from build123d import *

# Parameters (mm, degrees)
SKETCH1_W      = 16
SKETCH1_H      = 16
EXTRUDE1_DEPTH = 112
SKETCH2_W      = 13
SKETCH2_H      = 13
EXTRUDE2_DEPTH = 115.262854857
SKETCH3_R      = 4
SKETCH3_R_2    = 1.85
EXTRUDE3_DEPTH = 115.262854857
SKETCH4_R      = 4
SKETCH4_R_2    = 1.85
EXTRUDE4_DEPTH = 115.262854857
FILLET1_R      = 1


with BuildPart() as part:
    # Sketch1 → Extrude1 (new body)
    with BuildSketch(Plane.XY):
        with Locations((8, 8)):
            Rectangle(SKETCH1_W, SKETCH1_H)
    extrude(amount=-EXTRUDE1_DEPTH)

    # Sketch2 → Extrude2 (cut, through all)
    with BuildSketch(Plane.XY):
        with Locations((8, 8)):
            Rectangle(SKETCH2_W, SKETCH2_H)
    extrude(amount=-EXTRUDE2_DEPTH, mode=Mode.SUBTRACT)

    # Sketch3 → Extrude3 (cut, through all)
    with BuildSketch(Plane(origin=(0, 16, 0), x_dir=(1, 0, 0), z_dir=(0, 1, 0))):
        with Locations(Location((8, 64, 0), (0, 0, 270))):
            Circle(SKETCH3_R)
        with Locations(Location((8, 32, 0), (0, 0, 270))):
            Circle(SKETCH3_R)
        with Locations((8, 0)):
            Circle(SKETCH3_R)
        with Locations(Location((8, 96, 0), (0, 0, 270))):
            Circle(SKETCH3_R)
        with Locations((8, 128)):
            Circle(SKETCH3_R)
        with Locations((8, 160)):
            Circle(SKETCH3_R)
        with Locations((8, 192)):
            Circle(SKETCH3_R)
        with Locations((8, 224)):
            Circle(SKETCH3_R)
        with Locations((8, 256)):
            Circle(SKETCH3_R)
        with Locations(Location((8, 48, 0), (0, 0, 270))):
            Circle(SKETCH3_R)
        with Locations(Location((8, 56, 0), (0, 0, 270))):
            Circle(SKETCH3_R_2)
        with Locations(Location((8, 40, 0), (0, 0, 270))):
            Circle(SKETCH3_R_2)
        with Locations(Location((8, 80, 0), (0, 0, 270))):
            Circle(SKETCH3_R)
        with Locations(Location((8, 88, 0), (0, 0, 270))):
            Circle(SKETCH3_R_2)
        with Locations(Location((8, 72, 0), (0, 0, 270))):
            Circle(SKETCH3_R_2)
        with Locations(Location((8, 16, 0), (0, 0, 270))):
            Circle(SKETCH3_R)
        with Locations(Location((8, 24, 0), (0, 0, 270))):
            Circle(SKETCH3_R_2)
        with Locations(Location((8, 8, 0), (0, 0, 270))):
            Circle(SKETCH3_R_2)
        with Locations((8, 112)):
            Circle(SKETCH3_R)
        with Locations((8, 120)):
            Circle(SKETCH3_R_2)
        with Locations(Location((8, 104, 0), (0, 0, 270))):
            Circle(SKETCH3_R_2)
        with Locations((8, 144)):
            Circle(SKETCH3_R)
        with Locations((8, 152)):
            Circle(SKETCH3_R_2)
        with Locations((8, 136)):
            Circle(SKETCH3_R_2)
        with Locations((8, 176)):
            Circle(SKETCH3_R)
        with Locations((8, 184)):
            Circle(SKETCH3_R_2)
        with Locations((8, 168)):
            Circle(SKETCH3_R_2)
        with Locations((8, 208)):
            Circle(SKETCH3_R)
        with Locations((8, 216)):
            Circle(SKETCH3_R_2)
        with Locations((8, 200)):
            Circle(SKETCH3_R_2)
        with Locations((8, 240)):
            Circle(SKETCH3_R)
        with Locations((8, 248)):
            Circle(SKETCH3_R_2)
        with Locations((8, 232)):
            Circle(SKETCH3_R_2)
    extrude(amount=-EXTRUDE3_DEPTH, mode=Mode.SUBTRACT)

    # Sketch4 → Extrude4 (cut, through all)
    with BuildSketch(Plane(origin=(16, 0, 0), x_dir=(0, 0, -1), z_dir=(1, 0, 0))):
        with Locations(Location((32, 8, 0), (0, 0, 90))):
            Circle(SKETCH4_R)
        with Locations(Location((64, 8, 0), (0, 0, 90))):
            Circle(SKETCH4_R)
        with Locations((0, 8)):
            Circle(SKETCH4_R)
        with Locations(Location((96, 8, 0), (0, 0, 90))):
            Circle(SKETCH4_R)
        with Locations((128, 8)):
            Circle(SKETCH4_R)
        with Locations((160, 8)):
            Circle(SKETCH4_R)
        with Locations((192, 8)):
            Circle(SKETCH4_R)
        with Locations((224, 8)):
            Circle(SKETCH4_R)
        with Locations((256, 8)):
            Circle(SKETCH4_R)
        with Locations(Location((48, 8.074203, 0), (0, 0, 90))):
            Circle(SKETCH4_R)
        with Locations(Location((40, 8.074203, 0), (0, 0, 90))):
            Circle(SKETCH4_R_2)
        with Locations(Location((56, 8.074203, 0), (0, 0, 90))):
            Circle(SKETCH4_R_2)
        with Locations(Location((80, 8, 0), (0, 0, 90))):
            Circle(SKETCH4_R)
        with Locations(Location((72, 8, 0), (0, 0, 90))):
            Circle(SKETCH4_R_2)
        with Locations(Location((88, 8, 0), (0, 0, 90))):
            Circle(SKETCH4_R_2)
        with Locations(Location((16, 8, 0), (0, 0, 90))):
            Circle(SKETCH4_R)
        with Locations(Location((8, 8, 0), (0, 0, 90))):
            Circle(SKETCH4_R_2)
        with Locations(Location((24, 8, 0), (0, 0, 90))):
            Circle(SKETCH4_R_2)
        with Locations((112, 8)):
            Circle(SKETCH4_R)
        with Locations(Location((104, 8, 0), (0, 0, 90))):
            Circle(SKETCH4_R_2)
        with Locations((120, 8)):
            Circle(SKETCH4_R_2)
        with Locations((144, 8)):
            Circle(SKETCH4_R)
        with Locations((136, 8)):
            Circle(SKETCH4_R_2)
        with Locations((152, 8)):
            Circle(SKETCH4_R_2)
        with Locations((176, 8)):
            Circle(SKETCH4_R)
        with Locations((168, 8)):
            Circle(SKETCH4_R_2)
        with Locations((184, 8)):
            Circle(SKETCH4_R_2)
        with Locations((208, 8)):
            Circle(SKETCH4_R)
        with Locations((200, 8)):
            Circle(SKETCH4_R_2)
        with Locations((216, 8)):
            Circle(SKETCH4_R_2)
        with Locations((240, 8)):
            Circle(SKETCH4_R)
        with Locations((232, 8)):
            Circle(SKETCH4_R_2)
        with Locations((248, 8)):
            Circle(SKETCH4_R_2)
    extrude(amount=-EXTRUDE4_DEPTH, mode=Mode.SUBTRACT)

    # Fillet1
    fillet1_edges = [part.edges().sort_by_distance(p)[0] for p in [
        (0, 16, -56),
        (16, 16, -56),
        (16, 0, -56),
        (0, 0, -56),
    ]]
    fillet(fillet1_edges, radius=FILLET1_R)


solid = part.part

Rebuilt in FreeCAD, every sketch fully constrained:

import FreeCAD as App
import Part
import Sketcher


def edges_at(feature, points):
    """Names of the edges that pass closest to the given points."""
    edges = feature.Shape.Edges
    near = lambda p: min(range(len(edges)), key=lambda i: edges[i].distToShape(Part.Vertex(*p))[0])
    return sorted({f"Edge{near(p) + 1}" for p in points})


def add_polygon(sketch, points):
    """Adds a closed chain of lines whose ends are joined by coincident constraints."""
    first, n = sketch.GeometryCount, len(points)
    for a, b in zip(points, points[1:] + points[:1]):
        sketch.addGeometry(Part.LineSegment(App.Vector(*a, 0), App.Vector(*b, 0)), False)
    for i in range(n):
        sketch.addConstraint(Sketcher.Constraint("Coincident", first + i, 2, first + (i + 1) % n, 1))

doc = App.newDocument("Part")
params = doc.addObject("Spreadsheet::Sheet", "Params")
for row, (alias, value) in enumerate([
    ("sketch1_width", "16 mm"),
    ("pad1_length", "112 mm"),
    ("sketch2_width", "13 mm"),
    ("sketch3_diameter", "8 mm"),
    ("sketch3_diameter2", "3.7 mm"),
    ("sketch4_diameter", "8 mm"),
    ("sketch4_diameter2", "3.7 mm"),
    ("fillet_radius", "1 mm"),
], start=1):
    params.set(f"A{row}", alias)
    params.set(f"B{row}", "=" + value)
    params.setAlias(f"B{row}", alias)

body = doc.addObject("PartDesign::Body", "Body")

sketch1 = doc.addObject("Sketcher::SketchObject", "Sketch")
body.addObject(sketch1)
sketch1.AttachmentSupport = (doc.XY_Plane, [""])
sketch1.MapMode = "FlatFace"
add_polygon(sketch1, [(0, 16), (0, 0), (16, 0), (16, 16)])
sketch1.addConstraint([
    Sketcher.Constraint("Vertical", 0),
    Sketcher.Constraint("Horizontal", 1),
    Sketcher.Constraint("Vertical", 2),
    Sketcher.Constraint("Horizontal", 3),
    Sketcher.Constraint("Coincident", 0, 2, -1, 1),
    Sketcher.Constraint("Equal", 3, 0),
    Sketcher.Constraint("DistanceX", 1, 1, 1, 2, 16.0),
])
sketch1.setExpression("Constraints[10]", "Params.sketch1_width")
pad1 = doc.addObject("PartDesign::Pad", "Pad")
body.addObject(pad1)
pad1.Profile = sketch1
pad1.setExpression("Length", "Params.pad1_length")
pad1.Reversed = True

sketch2 = doc.addObject("Sketcher::SketchObject", "Sketch001")
body.addObject(sketch2)
sketch2.AttachmentSupport = (doc.XY_Plane, [""])
sketch2.MapMode = "FlatFace"
add_polygon(sketch2, [(2, 14), (2, 2), (14, 2), (14, 14)])
sketch2.addConstraint([
    Sketcher.Constraint("Vertical", 0),
    Sketcher.Constraint("Horizontal", 1),
    Sketcher.Constraint("Vertical", 2),
    Sketcher.Constraint("Horizontal", 3),
    Sketcher.Constraint("Equal", 3, 0),
    Sketcher.Constraint("DistanceX", 1, 1, 1, 2, 13.0),
    Sketcher.Constraint("DistanceX", -1, 1, 0, 2, 1.5),
    Sketcher.Constraint("DistanceY", -1, 1, 0, 2, 1.5),
])
sketch2.setExpression("Constraints[9]", "Params.sketch2_width")
pocket1 = doc.addObject("PartDesign::Pocket", "Pocket")
body.addObject(pocket1)
pocket1.Profile = sketch2
pocket1.Type = "ThroughAll"

sketch3 = doc.addObject("Sketcher::SketchObject", "Sketch002")
body.addObject(sketch3)
sketch3.AttachmentSupport = (doc.XZ_Plane, [""])
sketch3.MapMode = "FlatFace"
sketch3.AttachmentOffset = App.Placement(App.Vector(0, 0, -16), App.Rotation())
sketch3.addGeometry([
    Part.Circle(App.Vector(8, -64, 0), App.Vector(0, 0, 1), 4),
    Part.Circle(App.Vector(8, -32, 0), App.Vector(0, 0, 1), 4),
    Part.Circle(App.Vector(8, 0, 0), App.Vector(0, 0, 1), 4),
    Part.Circle(App.Vector(8, -96, 0), App.Vector(0, 0, 1), 4),
    Part.Circle(App.Vector(8, -128, 0), App.Vector(0, 0, 1), 4),
    Part.Circle(App.Vector(8, -160, 0), App.Vector(0, 0, 1), 4),
    Part.Circle(App.Vector(8, -192, 0), App.Vector(0, 0, 1), 4),
    Part.Circle(App.Vector(8, -224, 0), App.Vector(0, 0, 1), 4),
    Part.Circle(App.Vector(8, -256, 0), App.Vector(0, 0, 1), 4),
    Part.Circle(App.Vector(8, -48, 0), App.Vector(0, 0, 1), 4),
    Part.Circle(App.Vector(8, -56, 0), App.Vector(0, 0, 1), 1.9),
    Part.Circle(App.Vector(8, -40, 0), App.Vector(0, 0, 1), 1.9),
    Part.Circle(App.Vector(8, -80, 0), App.Vector(0, 0, 1), 4),
    Part.Circle(App.Vector(8, -88, 0), App.Vector(0, 0, 1), 1.9),
    Part.Circle(App.Vector(8, -72, 0), App.Vector(0, 0, 1), 1.9),
    Part.Circle(App.Vector(8, -16, 0), App.Vector(0, 0, 1), 4),
    Part.Circle(App.Vector(8, -24, 0), App.Vector(0, 0, 1), 1.9),
    Part.Circle(App.Vector(8, -8, 0), App.Vector(0, 0, 1), 1.9),
    Part.Circle(App.Vector(8, -112, 0), App.Vector(0, 0, 1), 4),
    Part.Circle(App.Vector(8, -120, 0), App.Vector(0, 0, 1), 1.9),
    Part.Circle(App.Vector(8, -104, 0), App.Vector(0, 0, 1), 1.9),
    Part.Circle(App.Vector(8, -144, 0), App.Vector(0, 0, 1), 4),
    Part.Circle(App.Vector(8, -152, 0), App.Vector(0, 0, 1), 1.9),
    Part.Circle(App.Vector(8, -136, 0), App.Vector(0, 0, 1), 1.9),
    Part.Circle(App.Vector(8, -176, 0), App.Vector(0, 0, 1), 4),
    Part.Circle(App.Vector(8, -184, 0), App.Vector(0, 0, 1), 1.9),
    Part.Circle(App.Vector(8, -168, 0), App.Vector(0, 0, 1), 1.9),
    Part.Circle(App.Vector(8, -208, 0), App.Vector(0, 0, 1), 4),
    Part.Circle(App.Vector(8, -216, 0), App.Vector(0, 0, 1), 1.9),
    Part.Circle(App.Vector(8, -200, 0), App.Vector(0, 0, 1), 1.9),
    Part.Circle(App.Vector(8, -240, 0), App.Vector(0, 0, 1), 4),
    Part.Circle(App.Vector(8, -248, 0), App.Vector(0, 0, 1), 1.9),
    Part.Circle(App.Vector(8, -232, 0), App.Vector(0, 0, 1), 1.9),
], False)
sketch3.addConstraint([
    Sketcher.Constraint("Equal", 0, 1),
    Sketcher.Constraint("Equal", 1, 2),
    Sketcher.Constraint("Equal", 2, 3),
    Sketcher.Constraint("Equal", 3, 4),
    Sketcher.Constraint("Equal", 4, 5),
    Sketcher.Constraint("Equal", 5, 6),
    Sketcher.Constraint("Equal", 6, 7),
    Sketcher.Constraint("Equal", 7, 8),
    Sketcher.Constraint("Equal", 8, 9),
    Sketcher.Constraint("Equal", 10, 11),
    Sketcher.Constraint("Equal", 9, 12),
    Sketcher.Constraint("Equal", 11, 13),
    Sketcher.Constraint("Equal", 13, 14),
    Sketcher.Constraint("Equal", 12, 15),
    Sketcher.Constraint("Equal", 14, 16),
    Sketcher.Constraint("Equal", 16, 17),
    Sketcher.Constraint("Equal", 15, 18),
    Sketcher.Constraint("Equal", 17, 19),
    Sketcher.Constraint("Equal", 19, 20),
    Sketcher.Constraint("Equal", 18, 21),
    Sketcher.Constraint("Equal", 20, 22),
    Sketcher.Constraint("Equal", 22, 23),
    Sketcher.Constraint("Equal", 21, 24),
    Sketcher.Constraint("Equal", 23, 25),
    Sketcher.Constraint("Equal", 25, 26),
    Sketcher.Constraint("Equal", 24, 27),
    Sketcher.Constraint("Equal", 26, 28),
    Sketcher.Constraint("Equal", 28, 29),
    Sketcher.Constraint("Equal", 27, 30),
    Sketcher.Constraint("Equal", 29, 31),
    Sketcher.Constraint("Equal", 31, 32),
    Sketcher.Constraint("PointOnObject", 2, 3, -1),
    Sketcher.Constraint("Vertical", 0, 3, 1, 3),
    Sketcher.Constraint("Vertical", 1, 3, 2, 3),
    Sketcher.Constraint("Vertical", 2, 3, 3, 3),
    Sketcher.Constraint("Vertical", 3, 3, 4, 3),
    Sketcher.Constraint("Vertical", 4, 3, 5, 3),
    Sketcher.Constraint("Vertical", 5, 3, 6, 3),
    Sketcher.Constraint("Vertical", 6, 3, 7, 3),
    Sketcher.Constraint("Vertical", 7, 3, 8, 3),
    Sketcher.Constraint("Vertical", 8, 3, 9, 3),
    Sketcher.Constraint("Vertical", 9, 3, 10, 3),
    Sketcher.Constraint("Vertical", 10, 3, 11, 3),
    Sketcher.Constraint("Vertical", 11, 3, 12, 3),
    Sketcher.Constraint("Vertical", 12, 3, 13, 3),
    Sketcher.Constraint("Vertical", 13, 3, 14, 3),
    Sketcher.Constraint("Vertical", 14, 3, 15, 3),
    Sketcher.Constraint("Vertical", 15, 3, 16, 3),
    Sketcher.Constraint("Vertical", 16, 3, 17, 3),
    Sketcher.Constraint("Vertical", 17, 3, 18, 3),
    Sketcher.Constraint("Vertical", 18, 3, 19, 3),
    Sketcher.Constraint("Vertical", 19, 3, 20, 3),
    Sketcher.Constraint("Vertical", 20, 3, 21, 3),
    Sketcher.Constraint("Vertical", 21, 3, 22, 3),
    Sketcher.Constraint("Vertical", 22, 3, 23, 3),
    Sketcher.Constraint("Vertical", 23, 3, 24, 3),
    Sketcher.Constraint("Vertical", 24, 3, 25, 3),
    Sketcher.Constraint("Vertical", 25, 3, 26, 3),
    Sketcher.Constraint("Vertical", 26, 3, 27, 3),
    Sketcher.Constraint("Vertical", 27, 3, 28, 3),
    Sketcher.Constraint("Vertical", 28, 3, 29, 3),
    Sketcher.Constraint("Vertical", 29, 3, 30, 3),
    Sketcher.Constraint("Vertical", 30, 3, 31, 3),
    Sketcher.Constraint("Vertical", 31, 3, 32, 3),
    Sketcher.Constraint("Diameter", 0, 8.0),
    Sketcher.Constraint("Diameter", 10, 3.7),
    Sketcher.Constraint("DistanceX", -1, 1, 0, 3, 8.0),
    Sketcher.Constraint("DistanceY", 0, 3, -1, 1, 64.0),
    Sketcher.Constraint("DistanceY", 1, 3, -1, 1, 32.0),
    Sketcher.Constraint("DistanceY", 3, 3, -1, 1, 96.0),
    Sketcher.Constraint("DistanceY", 4, 3, -1, 1, 128.0),
    Sketcher.Constraint("DistanceY", 5, 3, -1, 1, 160.0),
    Sketcher.Constraint("DistanceY", 6, 3, -1, 1, 192.0),
    Sketcher.Constraint("DistanceY", 7, 3, -1, 1, 224.0),
    Sketcher.Constraint("DistanceY", 8, 3, -1, 1, 256.0),
    Sketcher.Constraint("DistanceY", 9, 3, -1, 1, 48.0),
    Sketcher.Constraint("DistanceY", 10, 3, -1, 1, 56.0),
    Sketcher.Constraint("DistanceY", 11, 3, -1, 1, 40.0),
    Sketcher.Constraint("DistanceY", 12, 3, -1, 1, 80.0),
    Sketcher.Constraint("DistanceY", 13, 3, -1, 1, 88.0),
    Sketcher.Constraint("DistanceY", 14, 3, -1, 1, 72.0),
    Sketcher.Constraint("DistanceY", 15, 3, -1, 1, 16.0),
    Sketcher.Constraint("DistanceY", 16, 3, -1, 1, 24.0),
    Sketcher.Constraint("DistanceY", 17, 3, -1, 1, 8.0),
    Sketcher.Constraint("DistanceY", 18, 3, -1, 1, 112.0),
    Sketcher.Constraint("DistanceY", 19, 3, -1, 1, 120.0),
    Sketcher.Constraint("DistanceY", 20, 3, -1, 1, 104.0),
    Sketcher.Constraint("DistanceY", 21, 3, -1, 1, 144.0),
    Sketcher.Constraint("DistanceY", 22, 3, -1, 1, 152.0),
    Sketcher.Constraint("DistanceY", 23, 3, -1, 1, 136.0),
    Sketcher.Constraint("DistanceY", 24, 3, -1, 1, 176.0),
    Sketcher.Constraint("DistanceY", 25, 3, -1, 1, 184.0),
    Sketcher.Constraint("DistanceY", 26, 3, -1, 1, 168.0),
    Sketcher.Constraint("DistanceY", 27, 3, -1, 1, 208.0),
    Sketcher.Constraint("DistanceY", 28, 3, -1, 1, 216.0),
    Sketcher.Constraint("DistanceY", 29, 3, -1, 1, 200.0),
    Sketcher.Constraint("DistanceY", 30, 3, -1, 1, 240.0),
    Sketcher.Constraint("DistanceY", 31, 3, -1, 1, 248.0),
    Sketcher.Constraint("DistanceY", 32, 3, -1, 1, 232.0),
])
sketch3.setExpression("Constraints[64]", "Params.sketch3_diameter")
sketch3.setExpression("Constraints[65]", "Params.sketch3_diameter2")
pocket2 = doc.addObject("PartDesign::Pocket", "Pocket001")
body.addObject(pocket2)
pocket2.Profile = sketch3
pocket2.Type = "ThroughAll"
pocket2.Reversed = True

sketch4 = doc.addObject("Sketcher::SketchObject", "Sketch003")
body.addObject(sketch4)
sketch4.AttachmentSupport = (doc.YZ_Plane, [""])
sketch4.MapMode = "FlatFace"
sketch4.AttachmentOffset = App.Placement(App.Vector(0, 0, 16), App.Rotation())
sketch4.addGeometry([
    Part.Circle(App.Vector(8, -32, 0), App.Vector(0, 0, 1), 4),
    Part.Circle(App.Vector(8, -64, 0), App.Vector(0, 0, 1), 4),
    Part.Circle(App.Vector(8, 0, 0), App.Vector(0, 0, 1), 4),
    Part.Circle(App.Vector(8, -96, 0), App.Vector(0, 0, 1), 4),
    Part.Circle(App.Vector(8, -128, 0), App.Vector(0, 0, 1), 4),
    Part.Circle(App.Vector(8, -160, 0), App.Vector(0, 0, 1), 4),
    Part.Circle(App.Vector(8, -192, 0), App.Vector(0, 0, 1), 4),
    Part.Circle(App.Vector(8, -224, 0), App.Vector(0, 0, 1), 4),
    Part.Circle(App.Vector(8, -256, 0), App.Vector(0, 0, 1), 4),
    Part.Circle(App.Vector(8.1, -48, 0), App.Vector(0, 0, 1), 4),
    Part.Circle(App.Vector(8.1, -40, 0), App.Vector(0, 0, 1), 1.9),
    Part.Circle(App.Vector(8.1, -56, 0), App.Vector(0, 0, 1), 1.9),
    Part.Circle(App.Vector(8, -80, 0), App.Vector(0, 0, 1), 4),
    Part.Circle(App.Vector(8, -72, 0), App.Vector(0, 0, 1), 1.9),
    Part.Circle(App.Vector(8, -88, 0), App.Vector(0, 0, 1), 1.9),
    Part.Circle(App.Vector(8, -16, 0), App.Vector(0, 0, 1), 4),
    Part.Circle(App.Vector(8, -8, 0), App.Vector(0, 0, 1), 1.9),
    Part.Circle(App.Vector(8, -24, 0), App.Vector(0, 0, 1), 1.9),
    Part.Circle(App.Vector(8, -112, 0), App.Vector(0, 0, 1), 4),
    Part.Circle(App.Vector(8, -104, 0), App.Vector(0, 0, 1), 1.9),
    Part.Circle(App.Vector(8, -120, 0), App.Vector(0, 0, 1), 1.9),
    Part.Circle(App.Vector(8, -144, 0), App.Vector(0, 0, 1), 4),
    Part.Circle(App.Vector(8, -136, 0), App.Vector(0, 0, 1), 1.9),
    Part.Circle(App.Vector(8, -152, 0), App.Vector(0, 0, 1), 1.9),
    Part.Circle(App.Vector(8, -176, 0), App.Vector(0, 0, 1), 4),
    Part.Circle(App.Vector(8, -168, 0), App.Vector(0, 0, 1), 1.9),
    Part.Circle(App.Vector(8, -184, 0), App.Vector(0, 0, 1), 1.9),
    Part.Circle(App.Vector(8, -208, 0), App.Vector(0, 0, 1), 4),
    Part.Circle(App.Vector(8, -200, 0), App.Vector(0, 0, 1), 1.9),
    Part.Circle(App.Vector(8, -216, 0), App.Vector(0, 0, 1), 1.9),
    Part.Circle(App.Vector(8, -240, 0), App.Vector(0, 0, 1), 4),
    Part.Circle(App.Vector(8, -232, 0), App.Vector(0, 0, 1), 1.9),
    Part.Circle(App.Vector(8, -248, 0), App.Vector(0, 0, 1), 1.9),
], False)
sketch4.addConstraint([
    Sketcher.Constraint("Equal", 0, 1),
    Sketcher.Constraint("Equal", 1, 2),
    Sketcher.Constraint("Equal", 2, 3),
    Sketcher.Constraint("Equal", 3, 4),
    Sketcher.Constraint("Equal", 4, 5),
    Sketcher.Constraint("Equal", 5, 6),
    Sketcher.Constraint("Equal", 6, 7),
    Sketcher.Constraint("Equal", 7, 8),
    Sketcher.Constraint("Equal", 8, 9),
    Sketcher.Constraint("Equal", 10, 11),
    Sketcher.Constraint("Equal", 9, 12),
    Sketcher.Constraint("Equal", 11, 13),
    Sketcher.Constraint("Equal", 13, 14),
    Sketcher.Constraint("Equal", 12, 15),
    Sketcher.Constraint("Equal", 14, 16),
    Sketcher.Constraint("Equal", 16, 17),
    Sketcher.Constraint("Equal", 15, 18),
    Sketcher.Constraint("Equal", 17, 19),
    Sketcher.Constraint("Equal", 19, 20),
    Sketcher.Constraint("Equal", 18, 21),
    Sketcher.Constraint("Equal", 20, 22),
    Sketcher.Constraint("Equal", 22, 23),
    Sketcher.Constraint("Equal", 21, 24),
    Sketcher.Constraint("Equal", 23, 25),
    Sketcher.Constraint("Equal", 25, 26),
    Sketcher.Constraint("Equal", 24, 27),
    Sketcher.Constraint("Equal", 26, 28),
    Sketcher.Constraint("Equal", 28, 29),
    Sketcher.Constraint("Equal", 27, 30),
    Sketcher.Constraint("Equal", 29, 31),
    Sketcher.Constraint("Equal", 31, 32),
    Sketcher.Constraint("PointOnObject", 2, 3, -1),
    Sketcher.Constraint("Vertical", 0, 3, 1, 3),
    Sketcher.Constraint("Vertical", 1, 3, 2, 3),
    Sketcher.Constraint("Vertical", 2, 3, 3, 3),
    Sketcher.Constraint("Vertical", 3, 3, 4, 3),
    Sketcher.Constraint("Vertical", 4, 3, 5, 3),
    Sketcher.Constraint("Vertical", 5, 3, 6, 3),
    Sketcher.Constraint("Vertical", 6, 3, 7, 3),
    Sketcher.Constraint("Vertical", 7, 3, 8, 3),
    Sketcher.Constraint("Vertical", 9, 3, 10, 3),
    Sketcher.Constraint("Vertical", 10, 3, 11, 3),
    Sketcher.Constraint("Vertical", 8, 3, 12, 3),
    Sketcher.Constraint("Vertical", 12, 3, 13, 3),
    Sketcher.Constraint("Vertical", 13, 3, 14, 3),
    Sketcher.Constraint("Vertical", 14, 3, 15, 3),
    Sketcher.Constraint("Vertical", 15, 3, 16, 3),
    Sketcher.Constraint("Vertical", 16, 3, 17, 3),
    Sketcher.Constraint("Vertical", 17, 3, 18, 3),
    Sketcher.Constraint("Vertical", 18, 3, 19, 3),
    Sketcher.Constraint("Vertical", 19, 3, 20, 3),
    Sketcher.Constraint("Vertical", 20, 3, 21, 3),
    Sketcher.Constraint("Vertical", 21, 3, 22, 3),
    Sketcher.Constraint("Vertical", 22, 3, 23, 3),
    Sketcher.Constraint("Vertical", 23, 3, 24, 3),
    Sketcher.Constraint("Vertical", 24, 3, 25, 3),
    Sketcher.Constraint("Vertical", 25, 3, 26, 3),
    Sketcher.Constraint("Vertical", 26, 3, 27, 3),
    Sketcher.Constraint("Vertical", 27, 3, 28, 3),
    Sketcher.Constraint("Vertical", 28, 3, 29, 3),
    Sketcher.Constraint("Vertical", 29, 3, 30, 3),
    Sketcher.Constraint("Vertical", 30, 3, 31, 3),
    Sketcher.Constraint("Vertical", 31, 3, 32, 3),
    Sketcher.Constraint("Diameter", 0, 8.0),
    Sketcher.Constraint("Diameter", 10, 3.7),
    Sketcher.Constraint("DistanceX", -1, 1, 0, 3, 8.0),
    Sketcher.Constraint("DistanceY", 0, 3, -1, 1, 32.0),
    Sketcher.Constraint("DistanceY", 1, 3, -1, 1, 64.0),
    Sketcher.Constraint("DistanceY", 3, 3, -1, 1, 96.0),
    Sketcher.Constraint("DistanceY", 4, 3, -1, 1, 128.0),
    Sketcher.Constraint("DistanceY", 5, 3, -1, 1, 160.0),
    Sketcher.Constraint("DistanceY", 6, 3, -1, 1, 192.0),
    Sketcher.Constraint("DistanceY", 7, 3, -1, 1, 224.0),
    Sketcher.Constraint("DistanceY", 8, 3, -1, 1, 256.0),
    Sketcher.Constraint("DistanceY", 9, 3, -1, 1, 48.0),
    Sketcher.Constraint("DistanceY", 10, 3, -1, 1, 40.0),
    Sketcher.Constraint("DistanceY", 11, 3, -1, 1, 56.0),
    Sketcher.Constraint("DistanceY", 12, 3, -1, 1, 80.0),
    Sketcher.Constraint("DistanceY", 13, 3, -1, 1, 72.0),
    Sketcher.Constraint("DistanceY", 14, 3, -1, 1, 88.0),
    Sketcher.Constraint("DistanceY", 15, 3, -1, 1, 16.0),
    Sketcher.Constraint("DistanceY", 16, 3, -1, 1, 8.0),
    Sketcher.Constraint("DistanceY", 17, 3, -1, 1, 24.0),
    Sketcher.Constraint("DistanceY", 18, 3, -1, 1, 112.0),
    Sketcher.Constraint("DistanceY", 19, 3, -1, 1, 104.0),
    Sketcher.Constraint("DistanceY", 20, 3, -1, 1, 120.0),
    Sketcher.Constraint("DistanceY", 21, 3, -1, 1, 144.0),
    Sketcher.Constraint("DistanceY", 22, 3, -1, 1, 136.0),
    Sketcher.Constraint("DistanceY", 23, 3, -1, 1, 152.0),
    Sketcher.Constraint("DistanceY", 24, 3, -1, 1, 176.0),
    Sketcher.Constraint("DistanceY", 25, 3, -1, 1, 168.0),
    Sketcher.Constraint("DistanceY", 26, 3, -1, 1, 184.0),
    Sketcher.Constraint("DistanceY", 27, 3, -1, 1, 208.0),
    Sketcher.Constraint("DistanceY", 28, 3, -1, 1, 200.0),
    Sketcher.Constraint("DistanceY", 29, 3, -1, 1, 216.0),
    Sketcher.Constraint("DistanceY", 30, 3, -1, 1, 240.0),
    Sketcher.Constraint("DistanceY", 31, 3, -1, 1, 232.0),
    Sketcher.Constraint("DistanceY", 32, 3, -1, 1, 248.0),
    Sketcher.Constraint("DistanceX", -1, 1, 9, 3, 8.074203),
])
sketch4.setExpression("Constraints[63]", "Params.sketch4_diameter")
sketch4.setExpression("Constraints[64]", "Params.sketch4_diameter2")
pocket3 = doc.addObject("PartDesign::Pocket", "Pocket002")
body.addObject(pocket3)
pocket3.Profile = sketch4
pocket3.Type = "ThroughAll"
doc.recompute()

fillet = doc.addObject("PartDesign::Fillet", "Fillet")
body.addObject(fillet)
fillet.Base = (pocket3, edges_at(pocket3, [
    (0, 16, -56),
    (16, 16, -56),
    (16, 0, -56),
    (0, 0, -56),
]))
fillet.setExpression("Radius", "Params.fillet_radius")

doc.recompute()
